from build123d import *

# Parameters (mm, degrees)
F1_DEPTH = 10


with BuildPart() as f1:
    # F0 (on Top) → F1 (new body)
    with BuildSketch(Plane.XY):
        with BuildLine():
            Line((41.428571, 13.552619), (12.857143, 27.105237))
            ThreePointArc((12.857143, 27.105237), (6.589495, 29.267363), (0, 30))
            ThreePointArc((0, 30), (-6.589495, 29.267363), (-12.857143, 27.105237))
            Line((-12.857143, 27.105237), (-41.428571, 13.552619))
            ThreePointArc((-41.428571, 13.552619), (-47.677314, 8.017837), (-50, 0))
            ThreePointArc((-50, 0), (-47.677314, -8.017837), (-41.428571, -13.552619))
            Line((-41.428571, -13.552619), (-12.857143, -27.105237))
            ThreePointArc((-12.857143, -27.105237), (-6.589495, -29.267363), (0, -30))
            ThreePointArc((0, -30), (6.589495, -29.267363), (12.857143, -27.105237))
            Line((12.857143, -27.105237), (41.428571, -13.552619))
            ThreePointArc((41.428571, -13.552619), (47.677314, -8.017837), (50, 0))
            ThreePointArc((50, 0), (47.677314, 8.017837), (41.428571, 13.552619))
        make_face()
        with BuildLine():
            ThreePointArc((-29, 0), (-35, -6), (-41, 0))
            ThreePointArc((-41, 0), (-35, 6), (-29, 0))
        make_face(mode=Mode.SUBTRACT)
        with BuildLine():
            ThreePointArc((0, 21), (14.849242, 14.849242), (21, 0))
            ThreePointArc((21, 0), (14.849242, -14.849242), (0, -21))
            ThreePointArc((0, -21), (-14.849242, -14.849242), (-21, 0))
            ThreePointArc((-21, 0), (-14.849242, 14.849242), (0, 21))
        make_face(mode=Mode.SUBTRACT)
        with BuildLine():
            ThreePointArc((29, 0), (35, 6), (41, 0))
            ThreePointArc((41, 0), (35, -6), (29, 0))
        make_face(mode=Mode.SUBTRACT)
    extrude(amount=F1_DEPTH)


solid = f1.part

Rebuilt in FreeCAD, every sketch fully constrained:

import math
import FreeCAD as App
import Part
import Sketcher
from FreeCAD import Vector
Q = App.Units.Quantity

doc = App.newDocument("Part")
body = doc.addObject("PartDesign::Body", "Body")

sketch1 = body.newObject("Sketcher::SketchObject", "Sketch")
sketch1.AttachmentSupport = (doc.getObject("XY_Plane"), [""])
sketch1.MapMode = "FlatFace"
sketch1.addGeometry([
    Part.LineSegment(Vector(41.428571, 13.552619, 0), Vector(12.857143, 27.105237, 0)),
    Part.ArcOfCircle(Part.Circle(Vector(-0.000003, -0.000012, 0), Vector(0, 0, 1), 30.000012), math.radians(64.623071), math.radians(89.999995)),
    Part.ArcOfCircle(Part.Circle(Vector(0.000003, -0.000012, 0), Vector(0, 0, 1), 30.000012), math.radians(90.000005), math.radians(115.376929)),
    Part.LineSegment(Vector(-12.857143, 27.105237, 0), Vector(-41.428571, 13.552619, 0)),
    Part.ArcOfCircle(Part.Circle(Vector(-34.999999, 0, 0), Vector(0, 0, 1), 15.000001), math.radians(115.376933), math.radians(179.999999)),
    Part.ArcOfCircle(Part.Circle(Vector(-34.999999, 0, 0), Vector(0, 0, 1), 15.000001), math.radians(-179.999999), math.radians(-115.376933)),
    Part.LineSegment(Vector(-41.428571, -13.552619, 0), Vector(-12.857143, -27.105237, 0)),
    Part.ArcOfCircle(Part.Circle(Vector(0.000003, 0.000012, 0), Vector(0, 0, 1), 30.000012), math.radians(-115.376929), math.radians(-90.000005)),
    Part.ArcOfCircle(Part.Circle(Vector(-0.000003, 0.000012, 0), Vector(0, 0, 1), 30.000012), math.radians(-89.999995), math.radians(-64.623071)),
    Part.LineSegment(Vector(12.857143, -27.105237, 0), Vector(41.428571, -13.552619, 0)),
    Part.ArcOfCircle(Part.Circle(Vector(34.999999, 0, 0), Vector(0, 0, 1), 15.000001), math.radians(-64.623067), math.radians(-0.000001)),
    Part.ArcOfCircle(Part.Circle(Vector(34.999999, 0, 0), Vector(0, 0, 1), 15.000001), math.radians(0.000001), math.radians(64.623067)),
    Part.Circle(Vector(-35, 0, 0), Vector(0, 0, 1), 6),
    Part.ArcOfCircle(Part.Circle(Vector(0.000001, -0.000001, 0), Vector(0, 0, 1), 21.000001), math.radians(90.000004), math.radians(179.999996)),
    Part.ArcOfCircle(Part.Circle(Vector(-0.000001, -0.000001, 0), Vector(0, 0, 1), 21.000001), math.radians(0.000004), math.radians(89.999996)),
    Part.ArcOfCircle(Part.Circle(Vector(-0.000001, 0.000001, 0), Vector(0, 0, 1), 21.000001), math.radians(-89.999996), math.radians(-0.000004)),
    Part.ArcOfCircle(Part.Circle(Vector(0.000001, 0.000001, 0), Vector(0, 0, 1), 21.000001), math.radians(-179.999996), math.radians(-90.000004)),
    Part.Circle(Vector(35, 0, 0), Vector(0, 0, 1), 6),
], False)
sketch1.addConstraint([
    Sketcher.Constraint("Tangent", 0, 2, 1, 1),
    Sketcher.Constraint("Tangent", 1, 2, 2, 1),
    Sketcher.Constraint("Tangent", 2, 2, 3, 1),
    Sketcher.Constraint("Tangent", 3, 2, 4, 1),
    Sketcher.Constraint("Tangent", 4, 2, 5, 1),
    Sketcher.Constraint("Tangent", 5, 2, 6, 1),
    Sketcher.Constraint("Tangent", 6, 2, 7, 1),
    Sketcher.Constraint("Tangent", 7, 2, 8, 1),
    Sketcher.Constraint("Tangent", 8, 2, 9, 1),
    Sketcher.Constraint("Tangent", 9, 2, 10, 1),
    Sketcher.Constraint("Tangent", 10, 2, 11, 1),
    Sketcher.Constraint("Tangent", 11, 2, 0, 1),
    Sketcher.Constraint("Tangent", 13, 1, 14, 2),
    Sketcher.Constraint("Tangent", 14, 1, 15, 2),
    Sketcher.Constraint("Tangent", 15, 1, 16, 2),
    Sketcher.Constraint("Tangent", 16, 1, 13, 2),
    Sketcher.Constraint("Coincident", 13, 3, -1, 1),
    Sketcher.Constraint("Coincident", 12, 3, 4, 3),
    Sketcher.Constraint("Coincident", 17, 3, 10, 3),
    Sketcher.Constraint("Equal", 1, 2),
    Sketcher.Constraint("Equal", 4, 5),
    Sketcher.Constraint("Equal", 2, 7),
    Sketcher.Constraint("Equal", 7, 8),
    Sketcher.Constraint("Equal", 5, 10),
    Sketcher.Constraint("Equal", 10, 11),
    Sketcher.Constraint("Equal", 13, 14),
    Sketcher.Constraint("Equal", 12, 17),
    Sketcher.Constraint("Symmetric", 1, 3, 7, 3, -1, 1),
    Sketcher.Constraint("Symmetric", 4, 3, 10, 3, -1, 1),
    Sketcher.Constraint("Symmetric", 0, 2, 2, 2, -2),
    Sketcher.Constraint("PointOnObject", 1, 2, -2),
    Sketcher.Constraint("PointOnObject", 4, 2, -1),
    Sketcher.Constraint("PointOnObject", 7, 2, -2),
    Sketcher.Constraint("PointOnObject", 10, 2, -1),
    Sketcher.Constraint("PointOnObject", 13, 1, -2),
    Sketcher.Constraint("PointOnObject", 14, 1, -1),
    Sketcher.Constraint("PointOnObject", 15, 1, -2),
    Sketcher.Constraint("PointOnObject", 16, 1, -1),
    Sketcher.Constraint("Diameter", 12, Q("12 mm")),
    Sketcher.Constraint("Radius", 4, Q("15.000001 mm")),
    Sketcher.Constraint("Radius", 13, Q("21.000001 mm")),
    Sketcher.Constraint("DistanceX", 4, 3, -1, 1, Q("34.999999 mm")),
    Sketcher.Constraint("DistanceY", -1, 1, 1, 2, Q("30 mm")),
    Sketcher.Constraint("Radius", 1, Q("30.000012 mm")),
])
pad1 = body.newObject("PartDesign::Pad", "Pad")
pad1.Profile = sketch1
pad1.Length = 10

doc.recompute()
